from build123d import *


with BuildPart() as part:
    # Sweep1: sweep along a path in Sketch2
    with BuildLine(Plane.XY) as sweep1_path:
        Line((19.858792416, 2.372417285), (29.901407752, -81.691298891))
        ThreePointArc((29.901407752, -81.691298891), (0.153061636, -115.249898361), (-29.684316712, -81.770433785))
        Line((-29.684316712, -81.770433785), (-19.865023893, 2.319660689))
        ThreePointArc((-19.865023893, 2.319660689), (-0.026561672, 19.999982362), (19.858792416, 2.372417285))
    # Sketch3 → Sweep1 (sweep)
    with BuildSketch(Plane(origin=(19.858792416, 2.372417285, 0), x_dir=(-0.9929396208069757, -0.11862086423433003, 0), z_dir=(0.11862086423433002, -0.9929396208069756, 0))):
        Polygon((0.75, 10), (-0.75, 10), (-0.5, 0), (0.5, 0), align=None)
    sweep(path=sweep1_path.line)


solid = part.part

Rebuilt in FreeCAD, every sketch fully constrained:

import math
import FreeCAD as App
import Part
import Sketcher
Q = App.Units.Quantity

doc = App.newDocument("Part")
body = doc.addObject("PartDesign::Body", "Body")

sketch1 = doc.addObject("Sketcher::SketchObject", "Sketch")
body.addObject(sketch1)
sketch1.Placement = App.Placement(App.Vector(19.858792, 2.372417, 0), App.Rotation(App.Vector(-0.992939621, -0.118620864, 0), App.Vector(0, 0, -1), App.Vector(0.118620864, -0.992939621, 0), "ZXY"))
sketch1.addGeometry(Part.LineSegment(App.Vector(0.75, 10, 0), App.Vector(-0.75, 10, 0)), False)
sketch1.addGeometry(Part.LineSegment(App.Vector(-0.75, 10, 0), App.Vector(-0.5, 0, 0)), False)
sketch1.addGeometry(Part.LineSegment(App.Vector(-0.5, 0, 0), App.Vector(0.5, 0, 0)), False)
sketch1.addGeometry(Part.LineSegment(App.Vector(0.5, 0, 0), App.Vector(0.75, 10, 0)), False)
sketch1.addConstraint(Sketcher.Constraint("Coincident", 0, 2, 1, 1))
sketch1.addConstraint(Sketcher.Constraint("Coincident", 1, 2, 2, 1))
sketch1.addConstraint(Sketcher.Constraint("Coincident", 2, 2, 3, 1))
sketch1.addConstraint(Sketcher.Constraint("Coincident", 3, 2, 0, 1))
sketch1.addConstraint(Sketcher.Constraint("Horizontal", 0))
sketch1.addConstraint(Sketcher.Constraint("Horizontal", 2))
sketch1.addConstraint(Sketcher.Constraint("Symmetric", 1, 2, 2, 2, -1, 1))
sketch1.addConstraint(Sketcher.Constraint("Equal", 1, 3))
sketch1.addConstraint(Sketcher.Constraint("DistanceX", 2, 1, 2, 2, Q("1 mm")))
sketch1.addConstraint(Sketcher.Constraint("DistanceX", 0, 2, 0, 1, Q("1.5 mm")))
sketch1.addConstraint(Sketcher.Constraint("DistanceY", -1, 1, 0, 2, Q("10 mm")))

sketch2 = doc.addObject("Sketcher::SketchObject", "Sketch001")
body.addObject(sketch2)
sketch2.AttachmentSupport = (doc.XY_Plane, [""])
sketch2.MapMode = "FlatFace"
sketch2.addGeometry(Part.LineSegment(App.Vector(19.858792, 2.372417, 0), App.Vector(29.901408, -81.691299, 0)), False)
sketch2.addGeometry(Part.ArcOfCircle(Part.Circle(App.Vector(0.113219, -85.249925, 0), App.Vector(0, 0, 1), 30), math.radians(173.339672), math.radians(366.812515)), False)
sketch2.addGeometry(Part.LineSegment(App.Vector(-29.684317, -81.770434, 0), App.Vector(-19.865024, 2.319661, 0)), False)
sketch2.addGeometry(Part.ArcOfCircle(Part.Circle(App.Vector(0, 0, 0), App.Vector(0, 0, 1), 20), math.radians(6.812515), math.radians(173.339672)), False)
sketch2.addConstraint(Sketcher.Constraint("Tangent", 0, 2, 1, 2))
sketch2.addConstraint(Sketcher.Constraint("Tangent", 1, 1, 2, 1))
sketch2.addConstraint(Sketcher.Constraint("Tangent", 2, 2, 3, 2))
sketch2.addConstraint(Sketcher.Constraint("Tangent", 3, 1, 0, 1))
sketch2.addConstraint(Sketcher.Constraint("Coincident", 3, 3, -1, 1))
sketch2.addConstraint(Sketcher.Constraint("Radius", 1, Q("30 mm")))
sketch2.addConstraint(Sketcher.Constraint("Radius", 3, Q("20 mm")))
sketch2.addConstraint(Sketcher.Constraint("DistanceY", 0, 2, -1, 1, Q("81.691299 mm")))
sketch2.addConstraint(Sketcher.Constraint("Distance", 0, Q("84.661458 mm")))
doc.recompute()

additivepipe = doc.addObject("PartDesign::AdditivePipe", "AdditivePipe")
body.addObject(additivepipe)
additivepipe.Profile = sketch1
additivepipe.Spine = (sketch2, ["Edge1", "Edge2", "Edge3", "Edge4"])

doc.recompute()
